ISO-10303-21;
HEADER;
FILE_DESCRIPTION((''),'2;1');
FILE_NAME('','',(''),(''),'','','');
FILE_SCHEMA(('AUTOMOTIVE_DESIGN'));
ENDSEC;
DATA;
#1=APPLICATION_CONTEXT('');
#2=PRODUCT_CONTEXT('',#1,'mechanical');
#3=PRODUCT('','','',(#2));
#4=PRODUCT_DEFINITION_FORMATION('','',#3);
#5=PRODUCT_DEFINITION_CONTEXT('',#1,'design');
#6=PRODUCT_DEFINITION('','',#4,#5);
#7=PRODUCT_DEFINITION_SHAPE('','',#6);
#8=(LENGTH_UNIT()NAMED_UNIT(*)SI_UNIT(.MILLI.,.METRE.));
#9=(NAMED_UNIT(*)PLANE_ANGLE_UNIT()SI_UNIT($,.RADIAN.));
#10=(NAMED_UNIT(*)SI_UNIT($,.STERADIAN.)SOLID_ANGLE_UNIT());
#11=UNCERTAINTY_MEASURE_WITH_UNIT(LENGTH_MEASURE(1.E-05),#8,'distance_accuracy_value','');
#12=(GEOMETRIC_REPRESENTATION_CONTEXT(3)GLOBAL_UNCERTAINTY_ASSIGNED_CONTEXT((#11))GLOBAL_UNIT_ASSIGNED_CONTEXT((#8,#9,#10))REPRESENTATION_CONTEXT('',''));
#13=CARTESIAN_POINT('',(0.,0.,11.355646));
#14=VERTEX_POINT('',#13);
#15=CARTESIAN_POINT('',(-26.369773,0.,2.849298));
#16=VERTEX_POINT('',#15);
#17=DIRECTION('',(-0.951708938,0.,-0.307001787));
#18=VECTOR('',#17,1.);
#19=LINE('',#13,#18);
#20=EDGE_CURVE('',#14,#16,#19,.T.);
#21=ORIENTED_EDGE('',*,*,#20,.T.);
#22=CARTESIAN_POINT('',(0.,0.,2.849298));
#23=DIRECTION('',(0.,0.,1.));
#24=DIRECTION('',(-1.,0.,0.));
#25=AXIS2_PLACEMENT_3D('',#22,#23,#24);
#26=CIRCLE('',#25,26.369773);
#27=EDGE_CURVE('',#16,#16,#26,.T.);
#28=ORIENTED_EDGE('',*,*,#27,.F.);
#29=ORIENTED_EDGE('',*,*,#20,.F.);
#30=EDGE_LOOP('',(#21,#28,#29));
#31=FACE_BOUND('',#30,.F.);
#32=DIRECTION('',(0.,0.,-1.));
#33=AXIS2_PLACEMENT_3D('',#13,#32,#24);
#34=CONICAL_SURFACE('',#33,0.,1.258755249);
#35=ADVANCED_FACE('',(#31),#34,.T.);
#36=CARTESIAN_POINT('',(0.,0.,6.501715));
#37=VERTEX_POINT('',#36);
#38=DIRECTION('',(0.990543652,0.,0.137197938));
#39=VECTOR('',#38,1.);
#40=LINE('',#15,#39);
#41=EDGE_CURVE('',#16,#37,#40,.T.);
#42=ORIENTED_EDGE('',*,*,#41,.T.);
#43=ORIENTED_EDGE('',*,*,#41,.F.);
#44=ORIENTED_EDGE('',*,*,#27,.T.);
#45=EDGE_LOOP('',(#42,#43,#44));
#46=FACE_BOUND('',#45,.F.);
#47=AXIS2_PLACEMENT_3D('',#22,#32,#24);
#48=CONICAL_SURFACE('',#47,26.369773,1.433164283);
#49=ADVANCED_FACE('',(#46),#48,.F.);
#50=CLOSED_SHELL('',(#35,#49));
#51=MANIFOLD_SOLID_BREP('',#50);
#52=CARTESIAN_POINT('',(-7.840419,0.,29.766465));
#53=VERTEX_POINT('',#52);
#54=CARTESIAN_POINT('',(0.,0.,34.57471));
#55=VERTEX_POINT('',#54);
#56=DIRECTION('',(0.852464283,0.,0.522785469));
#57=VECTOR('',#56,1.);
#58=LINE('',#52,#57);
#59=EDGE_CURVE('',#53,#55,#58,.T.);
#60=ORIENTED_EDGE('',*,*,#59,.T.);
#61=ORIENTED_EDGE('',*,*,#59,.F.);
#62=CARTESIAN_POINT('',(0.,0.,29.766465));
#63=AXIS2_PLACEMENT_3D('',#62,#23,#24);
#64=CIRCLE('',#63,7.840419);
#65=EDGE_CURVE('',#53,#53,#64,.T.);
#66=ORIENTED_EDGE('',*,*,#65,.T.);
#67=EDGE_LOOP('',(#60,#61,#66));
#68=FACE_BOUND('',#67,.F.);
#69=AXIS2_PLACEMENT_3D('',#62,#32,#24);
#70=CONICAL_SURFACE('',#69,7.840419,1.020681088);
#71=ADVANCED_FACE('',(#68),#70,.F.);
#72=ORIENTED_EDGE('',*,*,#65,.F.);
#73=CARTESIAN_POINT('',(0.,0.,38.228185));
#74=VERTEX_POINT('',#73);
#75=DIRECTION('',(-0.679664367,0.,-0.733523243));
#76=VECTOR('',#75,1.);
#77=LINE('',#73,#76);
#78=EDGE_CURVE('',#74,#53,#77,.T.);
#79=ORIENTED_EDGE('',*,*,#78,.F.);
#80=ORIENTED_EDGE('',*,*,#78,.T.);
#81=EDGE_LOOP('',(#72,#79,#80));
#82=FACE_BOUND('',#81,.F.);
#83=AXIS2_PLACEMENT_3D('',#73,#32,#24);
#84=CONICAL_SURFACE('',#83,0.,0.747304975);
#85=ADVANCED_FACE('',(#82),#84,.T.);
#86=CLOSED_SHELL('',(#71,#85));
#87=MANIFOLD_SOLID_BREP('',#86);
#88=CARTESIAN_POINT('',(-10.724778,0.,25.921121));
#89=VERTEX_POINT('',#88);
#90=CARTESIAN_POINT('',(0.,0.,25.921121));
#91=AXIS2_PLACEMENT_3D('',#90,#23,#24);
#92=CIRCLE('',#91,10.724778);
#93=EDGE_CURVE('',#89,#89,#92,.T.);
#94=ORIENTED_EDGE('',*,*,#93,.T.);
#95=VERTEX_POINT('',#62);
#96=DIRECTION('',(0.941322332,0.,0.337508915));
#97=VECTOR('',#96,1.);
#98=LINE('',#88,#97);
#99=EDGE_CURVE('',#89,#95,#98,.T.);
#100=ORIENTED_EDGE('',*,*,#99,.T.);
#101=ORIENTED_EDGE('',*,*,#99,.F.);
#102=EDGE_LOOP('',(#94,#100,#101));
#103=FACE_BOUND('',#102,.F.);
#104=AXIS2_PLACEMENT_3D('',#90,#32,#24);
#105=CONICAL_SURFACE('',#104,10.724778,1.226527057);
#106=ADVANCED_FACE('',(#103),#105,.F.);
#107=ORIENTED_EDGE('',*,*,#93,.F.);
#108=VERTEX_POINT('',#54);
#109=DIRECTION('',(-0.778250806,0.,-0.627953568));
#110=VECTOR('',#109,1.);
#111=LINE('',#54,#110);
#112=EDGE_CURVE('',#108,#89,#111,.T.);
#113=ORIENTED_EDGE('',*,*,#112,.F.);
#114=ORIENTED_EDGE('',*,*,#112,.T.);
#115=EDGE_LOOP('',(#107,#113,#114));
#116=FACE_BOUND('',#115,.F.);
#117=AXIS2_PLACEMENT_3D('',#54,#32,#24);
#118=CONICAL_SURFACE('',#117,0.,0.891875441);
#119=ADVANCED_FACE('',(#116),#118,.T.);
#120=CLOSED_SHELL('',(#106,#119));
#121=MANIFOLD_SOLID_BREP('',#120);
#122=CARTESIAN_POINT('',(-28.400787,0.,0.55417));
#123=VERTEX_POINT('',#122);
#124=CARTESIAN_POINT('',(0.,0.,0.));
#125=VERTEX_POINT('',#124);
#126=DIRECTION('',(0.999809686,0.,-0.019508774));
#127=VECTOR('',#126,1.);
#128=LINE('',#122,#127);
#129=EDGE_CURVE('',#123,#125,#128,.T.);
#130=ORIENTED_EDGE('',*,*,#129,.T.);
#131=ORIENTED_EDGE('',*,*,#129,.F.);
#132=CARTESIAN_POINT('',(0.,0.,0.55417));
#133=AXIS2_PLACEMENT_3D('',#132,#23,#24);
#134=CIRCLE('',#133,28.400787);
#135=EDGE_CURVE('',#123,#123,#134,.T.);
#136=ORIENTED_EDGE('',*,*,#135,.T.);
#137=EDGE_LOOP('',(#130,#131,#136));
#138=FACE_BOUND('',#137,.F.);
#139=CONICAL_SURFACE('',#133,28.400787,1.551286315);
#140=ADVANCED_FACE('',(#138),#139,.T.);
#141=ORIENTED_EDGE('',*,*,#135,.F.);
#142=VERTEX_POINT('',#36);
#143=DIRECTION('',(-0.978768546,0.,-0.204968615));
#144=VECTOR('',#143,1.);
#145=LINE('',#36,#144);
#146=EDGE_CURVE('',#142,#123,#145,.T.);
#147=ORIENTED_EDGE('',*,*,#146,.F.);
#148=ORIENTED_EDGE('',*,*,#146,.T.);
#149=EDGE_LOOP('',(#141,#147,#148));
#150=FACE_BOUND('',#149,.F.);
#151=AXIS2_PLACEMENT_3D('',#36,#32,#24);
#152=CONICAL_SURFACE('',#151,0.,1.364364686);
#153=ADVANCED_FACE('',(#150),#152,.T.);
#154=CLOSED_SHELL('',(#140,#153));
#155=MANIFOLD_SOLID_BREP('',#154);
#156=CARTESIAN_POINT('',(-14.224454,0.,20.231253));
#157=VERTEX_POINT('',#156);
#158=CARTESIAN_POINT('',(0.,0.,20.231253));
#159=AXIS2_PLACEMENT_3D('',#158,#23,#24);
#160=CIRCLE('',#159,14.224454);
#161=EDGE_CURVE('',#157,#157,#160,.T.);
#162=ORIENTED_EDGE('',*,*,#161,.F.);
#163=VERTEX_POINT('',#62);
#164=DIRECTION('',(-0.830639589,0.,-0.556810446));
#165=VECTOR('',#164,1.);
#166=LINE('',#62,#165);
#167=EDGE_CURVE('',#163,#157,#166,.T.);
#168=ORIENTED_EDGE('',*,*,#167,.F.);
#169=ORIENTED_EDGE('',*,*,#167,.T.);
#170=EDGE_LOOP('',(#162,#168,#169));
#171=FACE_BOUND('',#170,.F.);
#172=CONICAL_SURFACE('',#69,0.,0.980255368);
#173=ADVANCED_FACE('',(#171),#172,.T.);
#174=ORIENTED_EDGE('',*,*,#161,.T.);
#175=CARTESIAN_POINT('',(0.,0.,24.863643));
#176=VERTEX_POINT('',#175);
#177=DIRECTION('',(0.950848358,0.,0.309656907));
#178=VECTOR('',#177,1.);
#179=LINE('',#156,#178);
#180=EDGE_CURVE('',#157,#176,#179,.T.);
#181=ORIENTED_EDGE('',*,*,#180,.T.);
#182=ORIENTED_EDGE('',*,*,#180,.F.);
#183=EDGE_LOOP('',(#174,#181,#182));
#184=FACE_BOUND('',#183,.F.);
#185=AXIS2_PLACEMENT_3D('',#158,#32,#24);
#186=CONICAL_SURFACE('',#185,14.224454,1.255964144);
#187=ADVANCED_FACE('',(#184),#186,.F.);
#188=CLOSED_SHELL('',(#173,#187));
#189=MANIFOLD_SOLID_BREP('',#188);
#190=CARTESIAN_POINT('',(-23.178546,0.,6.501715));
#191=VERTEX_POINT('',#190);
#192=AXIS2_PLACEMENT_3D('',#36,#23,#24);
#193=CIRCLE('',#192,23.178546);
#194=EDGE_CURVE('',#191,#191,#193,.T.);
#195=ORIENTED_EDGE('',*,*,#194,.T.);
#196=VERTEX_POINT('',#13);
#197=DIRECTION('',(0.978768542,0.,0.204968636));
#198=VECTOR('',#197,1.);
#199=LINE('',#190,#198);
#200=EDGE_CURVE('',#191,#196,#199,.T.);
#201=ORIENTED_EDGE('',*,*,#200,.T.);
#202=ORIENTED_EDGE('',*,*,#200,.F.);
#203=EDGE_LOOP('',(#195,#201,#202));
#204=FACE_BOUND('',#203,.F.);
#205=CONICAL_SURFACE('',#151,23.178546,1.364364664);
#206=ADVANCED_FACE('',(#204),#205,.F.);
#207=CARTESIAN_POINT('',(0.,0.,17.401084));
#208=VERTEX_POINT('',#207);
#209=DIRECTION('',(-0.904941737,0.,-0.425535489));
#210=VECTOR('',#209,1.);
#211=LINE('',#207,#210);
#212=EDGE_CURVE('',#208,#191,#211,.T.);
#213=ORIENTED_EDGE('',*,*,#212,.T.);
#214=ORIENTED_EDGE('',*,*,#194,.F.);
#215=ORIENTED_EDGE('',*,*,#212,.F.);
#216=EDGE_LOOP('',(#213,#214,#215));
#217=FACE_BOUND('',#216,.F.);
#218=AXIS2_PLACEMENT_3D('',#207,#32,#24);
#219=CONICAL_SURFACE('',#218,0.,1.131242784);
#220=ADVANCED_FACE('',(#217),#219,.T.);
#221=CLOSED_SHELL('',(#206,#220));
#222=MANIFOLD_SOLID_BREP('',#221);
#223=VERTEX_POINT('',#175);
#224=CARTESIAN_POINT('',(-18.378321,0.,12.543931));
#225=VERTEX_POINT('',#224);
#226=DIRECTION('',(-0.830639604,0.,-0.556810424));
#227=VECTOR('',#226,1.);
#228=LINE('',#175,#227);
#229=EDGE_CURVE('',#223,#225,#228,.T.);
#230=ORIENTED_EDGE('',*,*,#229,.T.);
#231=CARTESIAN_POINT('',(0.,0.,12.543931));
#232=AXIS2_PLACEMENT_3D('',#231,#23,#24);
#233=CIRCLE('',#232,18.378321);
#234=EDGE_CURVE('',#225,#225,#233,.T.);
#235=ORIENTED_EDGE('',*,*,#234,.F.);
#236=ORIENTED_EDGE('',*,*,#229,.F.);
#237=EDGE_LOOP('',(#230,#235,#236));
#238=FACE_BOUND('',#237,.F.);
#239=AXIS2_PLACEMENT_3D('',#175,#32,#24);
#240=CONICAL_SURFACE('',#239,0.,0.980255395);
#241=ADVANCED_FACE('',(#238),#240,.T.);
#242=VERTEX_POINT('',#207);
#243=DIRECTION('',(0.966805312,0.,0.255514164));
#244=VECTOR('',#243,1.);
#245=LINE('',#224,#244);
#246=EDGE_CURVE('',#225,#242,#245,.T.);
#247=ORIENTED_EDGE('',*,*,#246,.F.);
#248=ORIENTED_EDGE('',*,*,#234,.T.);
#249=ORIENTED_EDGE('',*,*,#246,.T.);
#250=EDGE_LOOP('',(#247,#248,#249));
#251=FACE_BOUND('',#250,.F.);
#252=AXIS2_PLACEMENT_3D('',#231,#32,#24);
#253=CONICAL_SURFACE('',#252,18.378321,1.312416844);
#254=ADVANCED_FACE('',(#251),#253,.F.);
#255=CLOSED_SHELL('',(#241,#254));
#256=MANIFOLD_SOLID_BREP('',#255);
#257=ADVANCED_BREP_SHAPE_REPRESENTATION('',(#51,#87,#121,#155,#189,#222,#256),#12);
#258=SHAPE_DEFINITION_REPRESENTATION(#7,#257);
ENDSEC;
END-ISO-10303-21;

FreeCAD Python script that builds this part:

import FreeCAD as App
import Part
import Sketcher

doc = App.newDocument("Part")
body = doc.addObject("PartDesign::Body", "Body")
body.AllowCompound = True

sketch1 = body.newObject("Sketcher::SketchObject", "Sketch")
sketch1.AttachmentSupport = (doc.getObject("XZ_Plane"), [""])
sketch1.MapMode = "FlatFace"
sketch1.addGeometry(Part.LineSegment(App.Vector(-18.4, 12.5, 0), App.Vector(0, 17.4, 0)), False)
sketch1.addGeometry(Part.LineSegment(App.Vector(0, 17.4, 0), App.Vector(0, 24.9, 0)), False)
sketch1.addGeometry(Part.LineSegment(App.Vector(0, 24.9, 0), App.Vector(-18.4, 12.5, 0)), False)
sketch1.addGeometry(Part.LineSegment(App.Vector(-14.2, 20.2, 0), App.Vector(0, 24.9, 0)), False)
sketch1.addGeometry(Part.LineSegment(App.Vector(0, 24.9, 0), App.Vector(0, 29.8, 0)), False)
sketch1.addGeometry(Part.LineSegment(App.Vector(0, 29.8, 0), App.Vector(-14.2, 20.2, 0)), False)
sketch1.addGeometry(Part.LineSegment(App.Vector(-7.8, 29.8, 0), App.Vector(0, 34.6, 0)), False)
sketch1.addGeometry(Part.LineSegment(App.Vector(0, 34.6, 0), App.Vector(0, 38.2, 0)), False)
sketch1.addGeometry(Part.LineSegment(App.Vector(0, 38.2, 0), App.Vector(-7.8, 29.8, 0)), False)
sketch1.addGeometry(Part.LineSegment(App.Vector(-10.7, 25.9, 0), App.Vector(0, 29.8, 0)), False)
sketch1.addGeometry(Part.LineSegment(App.Vector(0, 29.8, 0), App.Vector(0, 34.6, 0)), False)
sketch1.addGeometry(Part.LineSegment(App.Vector(0, 34.6, 0), App.Vector(-10.7, 25.9, 0)), False)
sketch1.addGeometry(Part.LineSegment(App.Vector(-23.2, 6.5, 0), App.Vector(0, 11.4, 0)), False)
sketch1.addGeometry(Part.LineSegment(App.Vector(0, 11.4, 0), App.Vector(0, 17.4, 0)), False)
sketch1.addGeometry(Part.LineSegment(App.Vector(0, 17.4, 0), App.Vector(-23.2, 6.5, 0)), False)
sketch1.addGeometry(Part.LineSegment(App.Vector(-26.4, 2.8, 0), App.Vector(0, 6.5, 0)), False)
sketch1.addGeometry(Part.LineSegment(App.Vector(0, 6.5, 0), App.Vector(0, 11.4, 0)), False)
sketch1.addGeometry(Part.LineSegment(App.Vector(0, 11.4, 0), App.Vector(-26.4, 2.8, 0)), False)
sketch1.addGeometry(Part.LineSegment(App.Vector(-28.4, 0.6, 0), App.Vector(0, 0, 0)), False)
sketch1.addGeometry(Part.LineSegment(App.Vector(0, 0, 0), App.Vector(0, 6.5, 0)), False)
sketch1.addGeometry(Part.LineSegment(App.Vector(0, 6.5, 0), App.Vector(-28.4, 0.6, 0)), False)
sketch1.addConstraint(Sketcher.Constraint("Coincident", 0, 2, 1, 1))
sketch1.addConstraint(Sketcher.Constraint("Coincident", 1, 2, 2, 1))
sketch1.addConstraint(Sketcher.Constraint("Coincident", 2, 2, 0, 1))
sketch1.addConstraint(Sketcher.Constraint("Coincident", 3, 2, 4, 1))
sketch1.addConstraint(Sketcher.Constraint("Coincident", 4, 2, 5, 1))
sketch1.addConstraint(Sketcher.Constraint("Coincident", 5, 2, 3, 1))
sketch1.addConstraint(Sketcher.Constraint("Coincident", 6, 2, 7, 1))
sketch1.addConstraint(Sketcher.Constraint("Coincident", 7, 2, 8, 1))
sketch1.addConstraint(Sketcher.Constraint("Coincident", 8, 2, 6, 1))
sketch1.addConstraint(Sketcher.Constraint("Coincident", 9, 2, 10, 1))
sketch1.addConstraint(Sketcher.Constraint("Coincident", 10, 2, 11, 1))
sketch1.addConstraint(Sketcher.Constraint("Coincident", 11, 2, 9, 1))
sketch1.addConstraint(Sketcher.Constraint("Coincident", 12, 2, 13, 1))
sketch1.addConstraint(Sketcher.Constraint("Coincident", 13, 2, 14, 1))
sketch1.addConstraint(Sketcher.Constraint("Coincident", 14, 2, 12, 1))
sketch1.addConstraint(Sketcher.Constraint("Coincident", 15, 2, 16, 1))
sketch1.addConstraint(Sketcher.Constraint("Coincident", 16, 2, 17, 1))
sketch1.addConstraint(Sketcher.Constraint("Coincident", 17, 2, 15, 1))
sketch1.addConstraint(Sketcher.Constraint("Coincident", 18, 2, 19, 1))
sketch1.addConstraint(Sketcher.Constraint("Coincident", 19, 2, 20, 1))
sketch1.addConstraint(Sketcher.Constraint("Coincident", 20, 2, 18, 1))
sketch1.addConstraint(Sketcher.Constraint("Vertical", 1))
sketch1.addConstraint(Sketcher.Constraint("Vertical", 4))
sketch1.addConstraint(Sketcher.Constraint("Vertical", 7))
sketch1.addConstraint(Sketcher.Constraint("Vertical", 10))
sketch1.addConstraint(Sketcher.Constraint("Vertical", 13))
sketch1.addConstraint(Sketcher.Constraint("Vertical", 16))
sketch1.addConstraint(Sketcher.Constraint("Vertical", 19))
sketch1.addConstraint(Sketcher.Constraint("Coincident", 18, 2, -1, 1))
sketch1.addConstraint(Sketcher.Constraint("Coincident", 3, 2, 1, 2))
sketch1.addConstraint(Sketcher.Constraint("Coincident", 9, 2, 4, 2))
sketch1.addConstraint(Sketcher.Constraint("Coincident", 10, 2, 6, 2))
sketch1.addConstraint(Sketcher.Constraint("Coincident", 13, 2, 0, 2))
sketch1.addConstraint(Sketcher.Constraint("Coincident", 16, 2, 12, 2))
sketch1.addConstraint(Sketcher.Constraint("Coincident", 19, 2, 15, 2))
sketch1.addConstraint(Sketcher.Constraint("Parallel", 2, 5))
sketch1.addConstraint(Sketcher.Constraint("Parallel", 12, 20))
sketch1.addConstraint(Sketcher.Constraint("Horizontal", 4, 2, 8, 2))
sketch1.addConstraint(Sketcher.Constraint("Horizontal", 14, 2, 15, 2))
sketch1.addConstraint(Sketcher.Constraint("Distance", 5, 17.1247))
sketch1.addConstraint(Sketcher.Constraint("Distance", 14, 25.613302))
sketch1.addConstraint(Sketcher.Constraint("DistanceY", 1, 1, 1, 2, 7.462559))
sketch1.addConstraint(Sketcher.Constraint("DistanceY", 13, 1, 13, 2, 6.045438))
sketch1.addConstraint(Sketcher.Constraint("DistanceY", 16, 1, 16, 2, 4.853931))
sketch1.addConstraint(Sketcher.Constraint("DistanceY", -1, 1, 17, 2, 2.849298))
sketch1.addConstraint(Sketcher.Constraint("DistanceY", 0, 2, 7, 2, 20.827101))
sketch1.addConstraint(Sketcher.Constraint("Distance", 0, 19.00933))
sketch1.addConstraint(Sketcher.Constraint("Distance", 3, 14.95975))
sketch1.addConstraint(Sketcher.Constraint("Distance", 8, 11.535722))
sketch1.addConstraint(Sketcher.Constraint("Distance", 9, 11.393311))
sketch1.addConstraint(Sketcher.Constraint("Distance", 11, 13.780619))
sketch1.addConstraint(Sketcher.Constraint("DistanceY", 4, 1, 4, 2, 4.902822))
sketch1.addConstraint(Sketcher.Constraint("DistanceY", 7, 1, 7, 2, 3.653475))
sketch1.addConstraint(Sketcher.Constraint("DistanceY", 19, 1, 19, 2, 6.501715))
sketch1.addConstraint(Sketcher.Constraint("DistanceY", -1, 1, 20, 2, 0.55417))
sketch1.addConstraint(Sketcher.Constraint("DistanceX", 17, 2, 2, 2, 7.991452))
revolution = body.newObject("PartDesign::Revolution", "Revolution")
revolution.Profile = sketch1
revolution.ReferenceAxis = (sketch1, ["V_Axis"])
revolution.Angle = 360

doc.recompute()
